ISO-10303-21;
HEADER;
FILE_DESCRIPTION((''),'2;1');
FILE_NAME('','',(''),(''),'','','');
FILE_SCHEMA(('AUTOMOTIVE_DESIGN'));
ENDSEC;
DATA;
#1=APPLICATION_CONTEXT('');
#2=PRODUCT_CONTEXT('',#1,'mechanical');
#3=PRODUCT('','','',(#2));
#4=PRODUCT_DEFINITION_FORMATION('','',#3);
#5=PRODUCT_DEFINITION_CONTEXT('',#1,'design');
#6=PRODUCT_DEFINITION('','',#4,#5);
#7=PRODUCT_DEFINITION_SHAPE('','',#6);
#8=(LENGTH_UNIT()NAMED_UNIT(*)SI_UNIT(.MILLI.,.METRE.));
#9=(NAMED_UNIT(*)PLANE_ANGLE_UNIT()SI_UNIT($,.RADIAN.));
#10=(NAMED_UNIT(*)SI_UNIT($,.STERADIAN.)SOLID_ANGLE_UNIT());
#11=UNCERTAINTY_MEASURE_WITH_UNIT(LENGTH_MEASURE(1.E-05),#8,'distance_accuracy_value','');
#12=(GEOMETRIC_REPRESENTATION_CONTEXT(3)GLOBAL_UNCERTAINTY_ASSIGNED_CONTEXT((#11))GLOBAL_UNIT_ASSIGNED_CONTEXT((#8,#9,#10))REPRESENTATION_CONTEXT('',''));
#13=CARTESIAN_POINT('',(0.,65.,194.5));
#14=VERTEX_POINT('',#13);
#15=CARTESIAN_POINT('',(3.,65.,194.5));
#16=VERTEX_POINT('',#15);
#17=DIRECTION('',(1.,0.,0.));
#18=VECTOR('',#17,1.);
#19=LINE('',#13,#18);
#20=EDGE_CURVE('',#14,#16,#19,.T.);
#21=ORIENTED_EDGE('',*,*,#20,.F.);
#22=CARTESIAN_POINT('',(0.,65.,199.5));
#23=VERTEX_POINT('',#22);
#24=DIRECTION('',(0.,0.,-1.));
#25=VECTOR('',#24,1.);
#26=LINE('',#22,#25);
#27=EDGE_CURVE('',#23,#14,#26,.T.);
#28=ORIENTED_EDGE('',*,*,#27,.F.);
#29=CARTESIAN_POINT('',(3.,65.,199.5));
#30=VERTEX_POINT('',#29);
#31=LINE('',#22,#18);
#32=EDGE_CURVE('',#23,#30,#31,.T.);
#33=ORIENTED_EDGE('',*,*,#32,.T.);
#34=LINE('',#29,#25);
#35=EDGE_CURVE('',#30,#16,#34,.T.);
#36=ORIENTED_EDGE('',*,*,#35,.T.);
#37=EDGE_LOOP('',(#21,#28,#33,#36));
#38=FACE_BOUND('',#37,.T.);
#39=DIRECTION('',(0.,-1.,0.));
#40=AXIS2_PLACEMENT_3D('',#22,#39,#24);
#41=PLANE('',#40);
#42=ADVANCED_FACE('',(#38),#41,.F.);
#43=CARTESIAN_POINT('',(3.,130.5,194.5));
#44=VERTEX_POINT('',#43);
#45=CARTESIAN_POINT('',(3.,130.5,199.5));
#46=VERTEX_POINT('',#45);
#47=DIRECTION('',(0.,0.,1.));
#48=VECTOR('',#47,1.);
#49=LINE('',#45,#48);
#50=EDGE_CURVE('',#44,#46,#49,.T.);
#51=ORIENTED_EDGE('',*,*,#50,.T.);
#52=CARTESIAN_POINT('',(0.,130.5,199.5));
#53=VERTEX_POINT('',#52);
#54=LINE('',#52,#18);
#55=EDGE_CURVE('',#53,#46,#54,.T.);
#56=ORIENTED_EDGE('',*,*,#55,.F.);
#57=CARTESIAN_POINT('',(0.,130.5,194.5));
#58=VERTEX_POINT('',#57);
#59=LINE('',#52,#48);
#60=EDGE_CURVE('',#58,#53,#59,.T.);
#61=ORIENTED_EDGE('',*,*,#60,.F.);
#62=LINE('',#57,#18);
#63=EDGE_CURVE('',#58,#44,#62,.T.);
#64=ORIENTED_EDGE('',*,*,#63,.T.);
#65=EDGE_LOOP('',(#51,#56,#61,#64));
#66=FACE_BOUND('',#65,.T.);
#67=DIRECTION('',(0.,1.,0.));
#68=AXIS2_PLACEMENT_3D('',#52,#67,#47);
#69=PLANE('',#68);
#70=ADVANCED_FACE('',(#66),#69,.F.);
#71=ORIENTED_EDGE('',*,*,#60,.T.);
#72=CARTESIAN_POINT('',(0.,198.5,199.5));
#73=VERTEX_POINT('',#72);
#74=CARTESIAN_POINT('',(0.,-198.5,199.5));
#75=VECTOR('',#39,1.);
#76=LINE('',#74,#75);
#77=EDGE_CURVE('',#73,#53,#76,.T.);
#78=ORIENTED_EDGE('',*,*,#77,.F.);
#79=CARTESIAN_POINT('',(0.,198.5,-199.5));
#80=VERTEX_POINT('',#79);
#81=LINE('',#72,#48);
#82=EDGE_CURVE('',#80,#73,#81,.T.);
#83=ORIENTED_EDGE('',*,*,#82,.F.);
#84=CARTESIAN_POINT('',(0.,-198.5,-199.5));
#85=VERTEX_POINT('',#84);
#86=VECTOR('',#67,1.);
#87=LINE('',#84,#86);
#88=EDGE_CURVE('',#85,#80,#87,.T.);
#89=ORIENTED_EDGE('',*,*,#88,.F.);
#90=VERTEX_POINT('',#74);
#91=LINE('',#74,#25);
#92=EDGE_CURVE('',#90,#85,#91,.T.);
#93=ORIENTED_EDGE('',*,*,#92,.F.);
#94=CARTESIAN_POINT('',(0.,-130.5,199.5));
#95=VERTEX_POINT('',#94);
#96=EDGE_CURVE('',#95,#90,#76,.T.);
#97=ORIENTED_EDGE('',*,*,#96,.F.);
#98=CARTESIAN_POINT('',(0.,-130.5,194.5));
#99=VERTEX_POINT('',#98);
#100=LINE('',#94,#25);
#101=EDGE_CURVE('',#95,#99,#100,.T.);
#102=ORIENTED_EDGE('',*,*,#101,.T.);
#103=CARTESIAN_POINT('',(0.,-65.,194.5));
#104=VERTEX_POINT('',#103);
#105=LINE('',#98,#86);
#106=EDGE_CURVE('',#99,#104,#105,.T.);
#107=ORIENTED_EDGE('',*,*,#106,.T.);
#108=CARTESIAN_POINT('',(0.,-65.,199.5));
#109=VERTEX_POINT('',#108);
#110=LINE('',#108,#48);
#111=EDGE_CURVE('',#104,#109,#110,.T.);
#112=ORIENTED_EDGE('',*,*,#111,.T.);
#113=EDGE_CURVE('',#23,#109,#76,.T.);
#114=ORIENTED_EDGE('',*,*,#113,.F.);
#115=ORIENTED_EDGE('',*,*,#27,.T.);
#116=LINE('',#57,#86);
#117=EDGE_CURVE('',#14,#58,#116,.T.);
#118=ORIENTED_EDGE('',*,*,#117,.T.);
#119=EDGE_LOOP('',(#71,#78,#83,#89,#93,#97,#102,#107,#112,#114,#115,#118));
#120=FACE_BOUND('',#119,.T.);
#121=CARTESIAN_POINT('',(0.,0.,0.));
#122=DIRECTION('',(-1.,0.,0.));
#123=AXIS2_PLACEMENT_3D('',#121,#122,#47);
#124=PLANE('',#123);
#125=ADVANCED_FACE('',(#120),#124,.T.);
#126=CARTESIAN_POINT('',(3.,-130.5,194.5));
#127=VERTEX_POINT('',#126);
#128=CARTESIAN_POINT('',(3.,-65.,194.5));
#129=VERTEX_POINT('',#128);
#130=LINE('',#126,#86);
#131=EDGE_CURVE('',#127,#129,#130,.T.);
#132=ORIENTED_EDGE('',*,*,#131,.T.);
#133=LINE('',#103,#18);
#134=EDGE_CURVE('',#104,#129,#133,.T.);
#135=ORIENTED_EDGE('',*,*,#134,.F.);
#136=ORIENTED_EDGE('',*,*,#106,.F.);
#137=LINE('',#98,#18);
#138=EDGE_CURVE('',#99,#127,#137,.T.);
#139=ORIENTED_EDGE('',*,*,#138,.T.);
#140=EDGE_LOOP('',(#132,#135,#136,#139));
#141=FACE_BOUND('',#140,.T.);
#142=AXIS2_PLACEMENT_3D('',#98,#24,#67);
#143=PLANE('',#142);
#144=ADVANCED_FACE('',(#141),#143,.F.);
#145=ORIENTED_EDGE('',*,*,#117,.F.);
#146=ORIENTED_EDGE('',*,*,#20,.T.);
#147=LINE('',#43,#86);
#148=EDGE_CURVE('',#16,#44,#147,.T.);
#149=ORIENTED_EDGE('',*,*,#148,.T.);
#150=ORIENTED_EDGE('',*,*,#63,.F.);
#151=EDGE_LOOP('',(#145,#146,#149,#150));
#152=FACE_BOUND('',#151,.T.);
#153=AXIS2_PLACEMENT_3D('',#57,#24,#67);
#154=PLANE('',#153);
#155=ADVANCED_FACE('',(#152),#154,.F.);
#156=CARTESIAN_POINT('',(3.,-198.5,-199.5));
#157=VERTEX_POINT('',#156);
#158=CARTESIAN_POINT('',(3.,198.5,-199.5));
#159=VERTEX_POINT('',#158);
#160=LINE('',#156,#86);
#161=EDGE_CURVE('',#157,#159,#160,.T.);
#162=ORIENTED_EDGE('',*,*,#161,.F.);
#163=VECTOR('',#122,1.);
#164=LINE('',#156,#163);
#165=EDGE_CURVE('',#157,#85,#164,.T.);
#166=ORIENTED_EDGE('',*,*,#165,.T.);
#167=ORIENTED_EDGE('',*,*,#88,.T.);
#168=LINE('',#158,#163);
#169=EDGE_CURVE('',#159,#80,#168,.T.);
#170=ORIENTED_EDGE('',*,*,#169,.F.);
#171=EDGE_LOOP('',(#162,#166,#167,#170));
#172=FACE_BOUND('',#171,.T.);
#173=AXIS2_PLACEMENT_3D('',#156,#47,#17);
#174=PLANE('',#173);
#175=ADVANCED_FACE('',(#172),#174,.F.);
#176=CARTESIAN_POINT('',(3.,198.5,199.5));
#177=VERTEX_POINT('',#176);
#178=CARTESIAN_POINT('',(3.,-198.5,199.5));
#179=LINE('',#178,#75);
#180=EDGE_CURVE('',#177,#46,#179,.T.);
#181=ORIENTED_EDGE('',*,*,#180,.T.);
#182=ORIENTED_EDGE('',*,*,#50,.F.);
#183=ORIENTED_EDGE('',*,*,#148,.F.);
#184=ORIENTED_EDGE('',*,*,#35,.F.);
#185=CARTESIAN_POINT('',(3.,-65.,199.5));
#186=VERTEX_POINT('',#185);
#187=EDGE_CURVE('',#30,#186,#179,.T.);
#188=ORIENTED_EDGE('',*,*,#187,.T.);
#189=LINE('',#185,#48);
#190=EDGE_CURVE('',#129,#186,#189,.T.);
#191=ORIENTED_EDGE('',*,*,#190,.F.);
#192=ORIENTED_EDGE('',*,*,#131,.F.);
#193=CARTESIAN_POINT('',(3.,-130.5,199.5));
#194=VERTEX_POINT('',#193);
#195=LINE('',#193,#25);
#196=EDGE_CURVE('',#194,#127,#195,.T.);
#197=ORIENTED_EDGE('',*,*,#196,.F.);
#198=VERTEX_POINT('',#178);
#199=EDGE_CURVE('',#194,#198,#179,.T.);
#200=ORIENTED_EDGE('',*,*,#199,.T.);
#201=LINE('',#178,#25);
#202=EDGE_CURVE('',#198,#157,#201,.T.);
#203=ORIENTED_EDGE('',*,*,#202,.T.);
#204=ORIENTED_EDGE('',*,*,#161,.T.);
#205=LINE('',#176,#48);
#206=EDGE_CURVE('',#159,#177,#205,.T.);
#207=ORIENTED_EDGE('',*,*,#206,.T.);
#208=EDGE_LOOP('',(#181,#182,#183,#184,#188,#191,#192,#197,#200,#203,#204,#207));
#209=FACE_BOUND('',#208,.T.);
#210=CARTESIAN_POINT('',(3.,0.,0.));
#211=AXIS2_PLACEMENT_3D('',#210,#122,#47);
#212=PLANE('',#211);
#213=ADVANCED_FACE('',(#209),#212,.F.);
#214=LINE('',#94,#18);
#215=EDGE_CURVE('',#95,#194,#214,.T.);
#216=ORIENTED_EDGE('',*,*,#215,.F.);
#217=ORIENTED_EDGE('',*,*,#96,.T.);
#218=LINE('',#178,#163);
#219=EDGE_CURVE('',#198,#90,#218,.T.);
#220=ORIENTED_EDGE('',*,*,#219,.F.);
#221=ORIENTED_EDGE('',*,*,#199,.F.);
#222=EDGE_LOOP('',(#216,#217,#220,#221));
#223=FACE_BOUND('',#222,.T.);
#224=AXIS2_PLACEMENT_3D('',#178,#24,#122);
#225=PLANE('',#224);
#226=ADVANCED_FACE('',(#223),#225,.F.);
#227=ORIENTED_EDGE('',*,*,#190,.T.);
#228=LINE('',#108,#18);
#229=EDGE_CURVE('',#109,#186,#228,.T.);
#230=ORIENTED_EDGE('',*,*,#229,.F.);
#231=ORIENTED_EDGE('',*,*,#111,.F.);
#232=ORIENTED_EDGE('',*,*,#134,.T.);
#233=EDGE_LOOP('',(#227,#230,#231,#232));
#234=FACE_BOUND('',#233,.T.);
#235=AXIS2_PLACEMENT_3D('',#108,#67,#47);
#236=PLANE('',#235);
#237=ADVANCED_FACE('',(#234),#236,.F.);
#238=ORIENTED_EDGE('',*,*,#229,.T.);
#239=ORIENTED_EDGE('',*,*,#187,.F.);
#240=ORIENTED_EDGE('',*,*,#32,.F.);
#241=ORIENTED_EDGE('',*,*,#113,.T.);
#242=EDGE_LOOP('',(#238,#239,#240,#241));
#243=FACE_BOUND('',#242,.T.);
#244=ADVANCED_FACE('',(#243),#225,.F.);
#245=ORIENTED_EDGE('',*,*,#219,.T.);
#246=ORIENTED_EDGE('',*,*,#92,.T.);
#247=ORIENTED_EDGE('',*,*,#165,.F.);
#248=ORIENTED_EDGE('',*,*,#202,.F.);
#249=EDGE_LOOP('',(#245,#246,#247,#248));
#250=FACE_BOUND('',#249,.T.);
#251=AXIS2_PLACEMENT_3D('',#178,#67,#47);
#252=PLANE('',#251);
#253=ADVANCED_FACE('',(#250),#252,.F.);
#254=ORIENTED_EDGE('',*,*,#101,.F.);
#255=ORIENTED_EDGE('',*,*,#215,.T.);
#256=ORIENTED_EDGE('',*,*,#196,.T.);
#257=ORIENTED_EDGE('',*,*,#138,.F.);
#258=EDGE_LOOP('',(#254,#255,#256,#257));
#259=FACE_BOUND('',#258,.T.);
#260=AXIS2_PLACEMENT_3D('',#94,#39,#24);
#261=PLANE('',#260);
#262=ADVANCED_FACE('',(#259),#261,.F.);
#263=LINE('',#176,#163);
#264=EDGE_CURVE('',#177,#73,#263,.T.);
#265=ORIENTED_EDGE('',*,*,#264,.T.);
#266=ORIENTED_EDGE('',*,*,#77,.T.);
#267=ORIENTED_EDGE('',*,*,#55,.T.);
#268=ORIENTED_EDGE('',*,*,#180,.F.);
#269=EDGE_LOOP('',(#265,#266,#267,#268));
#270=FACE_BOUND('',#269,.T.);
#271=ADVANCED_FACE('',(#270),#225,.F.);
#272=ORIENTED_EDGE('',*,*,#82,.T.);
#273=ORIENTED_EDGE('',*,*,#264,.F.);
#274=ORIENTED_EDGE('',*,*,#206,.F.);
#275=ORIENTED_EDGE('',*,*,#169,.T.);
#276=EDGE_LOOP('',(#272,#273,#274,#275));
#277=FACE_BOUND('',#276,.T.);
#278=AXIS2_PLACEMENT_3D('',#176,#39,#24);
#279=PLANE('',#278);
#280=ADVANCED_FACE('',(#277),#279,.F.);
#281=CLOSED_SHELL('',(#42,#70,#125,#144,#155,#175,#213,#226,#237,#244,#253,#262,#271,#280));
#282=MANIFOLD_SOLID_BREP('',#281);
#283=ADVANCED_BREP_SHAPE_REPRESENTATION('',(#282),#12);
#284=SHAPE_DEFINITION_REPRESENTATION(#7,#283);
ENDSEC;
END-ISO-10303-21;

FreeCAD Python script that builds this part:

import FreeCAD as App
import Part
import Sketcher

V = App.Vector


def add_polygon(sketch, points):
    """Adds a closed chain of lines whose ends are joined by coincident constraints."""
    first, n = sketch.GeometryCount, len(points)
    for a, b in zip(points, points[1:] + points[:1]):
        sketch.addGeometry(Part.LineSegment(App.Vector(*a, 0), App.Vector(*b, 0)), False)
    for i in range(n):
        sketch.addConstraint(Sketcher.Constraint("Coincident", first + i, 2, first + (i + 1) % n, 1))

doc = App.newDocument("Part")
body = doc.addObject("PartDesign::Body", "Body")

sketch1 = doc.addObject("Sketcher::SketchObject", "Sketch")
body.addObject(sketch1)
sketch1.AttachmentSupport = (doc.YZ_Plane, [""])
sketch1.MapMode = "FlatFace"
add_polygon(sketch1, [(198, 200), (-198, 200), (-198, -200), (198, -200)])
sketch1.addConstraint([
    Sketcher.Constraint("Horizontal", 0),
    Sketcher.Constraint("Vertical", 1),
    Sketcher.Constraint("Horizontal", 2),
    Sketcher.Constraint("Vertical", 3),
    Sketcher.Constraint("Symmetric", 0, 2, 2, 2, -1, 1),
    Sketcher.Constraint("DistanceX", 0, 2, 0, 1, 397.0),
    Sketcher.Constraint("DistanceY", 1, 2, 1, 1, 399.0),
])
pad1 = doc.addObject("PartDesign::Pad", "Pad")
body.addObject(pad1)
pad1.Profile = sketch1
pad1.Length = 3

sketch2 = doc.addObject("Sketcher::SketchObject", "Sketch001")
body.addObject(sketch2)
sketch2.AttachmentSupport = (doc.YZ_Plane, [""])
sketch2.MapMode = "FlatFace"
sketch2.AttachmentOffset = App.Placement(V(0, 0, 3), App.Rotation())
add_polygon(sketch2, [(130, 200), (65, 200), (65, 194), (130, 194)])
add_polygon(sketch2, [(-65, 200), (-130, 200), (-130, 194), (-65, 194)])
sketch2.addConstraint([
    Sketcher.Constraint("Horizontal", 0),
    Sketcher.Constraint("Vertical", 1),
    Sketcher.Constraint("Horizontal", 2),
    Sketcher.Constraint("Vertical", 3),
    Sketcher.Constraint("Horizontal", 4),
    Sketcher.Constraint("Vertical", 5),
    Sketcher.Constraint("Horizontal", 6),
    Sketcher.Constraint("Vertical", 7),
    Sketcher.Constraint("Symmetric", 3, 2, 4, 2, -2),
    Sketcher.Constraint("Symmetric", 1, 2, 6, 2, -2),
    Sketcher.Constraint("DistanceY", 1, 2, 1, 1, 5.0),
    Sketcher.Constraint("DistanceX", 0, 2, 0, 1, 65.5),
    Sketcher.Constraint("DistanceX", -1, 1, 0, 2, 65.0),
    Sketcher.Constraint("DistanceY", -1, 1, 0, 2, 199.5),
])
pocket1 = doc.addObject("PartDesign::Pocket", "Pocket")
body.addObject(pocket1)
pocket1.Profile = sketch2
pocket1.Length = 3

doc.recompute()
